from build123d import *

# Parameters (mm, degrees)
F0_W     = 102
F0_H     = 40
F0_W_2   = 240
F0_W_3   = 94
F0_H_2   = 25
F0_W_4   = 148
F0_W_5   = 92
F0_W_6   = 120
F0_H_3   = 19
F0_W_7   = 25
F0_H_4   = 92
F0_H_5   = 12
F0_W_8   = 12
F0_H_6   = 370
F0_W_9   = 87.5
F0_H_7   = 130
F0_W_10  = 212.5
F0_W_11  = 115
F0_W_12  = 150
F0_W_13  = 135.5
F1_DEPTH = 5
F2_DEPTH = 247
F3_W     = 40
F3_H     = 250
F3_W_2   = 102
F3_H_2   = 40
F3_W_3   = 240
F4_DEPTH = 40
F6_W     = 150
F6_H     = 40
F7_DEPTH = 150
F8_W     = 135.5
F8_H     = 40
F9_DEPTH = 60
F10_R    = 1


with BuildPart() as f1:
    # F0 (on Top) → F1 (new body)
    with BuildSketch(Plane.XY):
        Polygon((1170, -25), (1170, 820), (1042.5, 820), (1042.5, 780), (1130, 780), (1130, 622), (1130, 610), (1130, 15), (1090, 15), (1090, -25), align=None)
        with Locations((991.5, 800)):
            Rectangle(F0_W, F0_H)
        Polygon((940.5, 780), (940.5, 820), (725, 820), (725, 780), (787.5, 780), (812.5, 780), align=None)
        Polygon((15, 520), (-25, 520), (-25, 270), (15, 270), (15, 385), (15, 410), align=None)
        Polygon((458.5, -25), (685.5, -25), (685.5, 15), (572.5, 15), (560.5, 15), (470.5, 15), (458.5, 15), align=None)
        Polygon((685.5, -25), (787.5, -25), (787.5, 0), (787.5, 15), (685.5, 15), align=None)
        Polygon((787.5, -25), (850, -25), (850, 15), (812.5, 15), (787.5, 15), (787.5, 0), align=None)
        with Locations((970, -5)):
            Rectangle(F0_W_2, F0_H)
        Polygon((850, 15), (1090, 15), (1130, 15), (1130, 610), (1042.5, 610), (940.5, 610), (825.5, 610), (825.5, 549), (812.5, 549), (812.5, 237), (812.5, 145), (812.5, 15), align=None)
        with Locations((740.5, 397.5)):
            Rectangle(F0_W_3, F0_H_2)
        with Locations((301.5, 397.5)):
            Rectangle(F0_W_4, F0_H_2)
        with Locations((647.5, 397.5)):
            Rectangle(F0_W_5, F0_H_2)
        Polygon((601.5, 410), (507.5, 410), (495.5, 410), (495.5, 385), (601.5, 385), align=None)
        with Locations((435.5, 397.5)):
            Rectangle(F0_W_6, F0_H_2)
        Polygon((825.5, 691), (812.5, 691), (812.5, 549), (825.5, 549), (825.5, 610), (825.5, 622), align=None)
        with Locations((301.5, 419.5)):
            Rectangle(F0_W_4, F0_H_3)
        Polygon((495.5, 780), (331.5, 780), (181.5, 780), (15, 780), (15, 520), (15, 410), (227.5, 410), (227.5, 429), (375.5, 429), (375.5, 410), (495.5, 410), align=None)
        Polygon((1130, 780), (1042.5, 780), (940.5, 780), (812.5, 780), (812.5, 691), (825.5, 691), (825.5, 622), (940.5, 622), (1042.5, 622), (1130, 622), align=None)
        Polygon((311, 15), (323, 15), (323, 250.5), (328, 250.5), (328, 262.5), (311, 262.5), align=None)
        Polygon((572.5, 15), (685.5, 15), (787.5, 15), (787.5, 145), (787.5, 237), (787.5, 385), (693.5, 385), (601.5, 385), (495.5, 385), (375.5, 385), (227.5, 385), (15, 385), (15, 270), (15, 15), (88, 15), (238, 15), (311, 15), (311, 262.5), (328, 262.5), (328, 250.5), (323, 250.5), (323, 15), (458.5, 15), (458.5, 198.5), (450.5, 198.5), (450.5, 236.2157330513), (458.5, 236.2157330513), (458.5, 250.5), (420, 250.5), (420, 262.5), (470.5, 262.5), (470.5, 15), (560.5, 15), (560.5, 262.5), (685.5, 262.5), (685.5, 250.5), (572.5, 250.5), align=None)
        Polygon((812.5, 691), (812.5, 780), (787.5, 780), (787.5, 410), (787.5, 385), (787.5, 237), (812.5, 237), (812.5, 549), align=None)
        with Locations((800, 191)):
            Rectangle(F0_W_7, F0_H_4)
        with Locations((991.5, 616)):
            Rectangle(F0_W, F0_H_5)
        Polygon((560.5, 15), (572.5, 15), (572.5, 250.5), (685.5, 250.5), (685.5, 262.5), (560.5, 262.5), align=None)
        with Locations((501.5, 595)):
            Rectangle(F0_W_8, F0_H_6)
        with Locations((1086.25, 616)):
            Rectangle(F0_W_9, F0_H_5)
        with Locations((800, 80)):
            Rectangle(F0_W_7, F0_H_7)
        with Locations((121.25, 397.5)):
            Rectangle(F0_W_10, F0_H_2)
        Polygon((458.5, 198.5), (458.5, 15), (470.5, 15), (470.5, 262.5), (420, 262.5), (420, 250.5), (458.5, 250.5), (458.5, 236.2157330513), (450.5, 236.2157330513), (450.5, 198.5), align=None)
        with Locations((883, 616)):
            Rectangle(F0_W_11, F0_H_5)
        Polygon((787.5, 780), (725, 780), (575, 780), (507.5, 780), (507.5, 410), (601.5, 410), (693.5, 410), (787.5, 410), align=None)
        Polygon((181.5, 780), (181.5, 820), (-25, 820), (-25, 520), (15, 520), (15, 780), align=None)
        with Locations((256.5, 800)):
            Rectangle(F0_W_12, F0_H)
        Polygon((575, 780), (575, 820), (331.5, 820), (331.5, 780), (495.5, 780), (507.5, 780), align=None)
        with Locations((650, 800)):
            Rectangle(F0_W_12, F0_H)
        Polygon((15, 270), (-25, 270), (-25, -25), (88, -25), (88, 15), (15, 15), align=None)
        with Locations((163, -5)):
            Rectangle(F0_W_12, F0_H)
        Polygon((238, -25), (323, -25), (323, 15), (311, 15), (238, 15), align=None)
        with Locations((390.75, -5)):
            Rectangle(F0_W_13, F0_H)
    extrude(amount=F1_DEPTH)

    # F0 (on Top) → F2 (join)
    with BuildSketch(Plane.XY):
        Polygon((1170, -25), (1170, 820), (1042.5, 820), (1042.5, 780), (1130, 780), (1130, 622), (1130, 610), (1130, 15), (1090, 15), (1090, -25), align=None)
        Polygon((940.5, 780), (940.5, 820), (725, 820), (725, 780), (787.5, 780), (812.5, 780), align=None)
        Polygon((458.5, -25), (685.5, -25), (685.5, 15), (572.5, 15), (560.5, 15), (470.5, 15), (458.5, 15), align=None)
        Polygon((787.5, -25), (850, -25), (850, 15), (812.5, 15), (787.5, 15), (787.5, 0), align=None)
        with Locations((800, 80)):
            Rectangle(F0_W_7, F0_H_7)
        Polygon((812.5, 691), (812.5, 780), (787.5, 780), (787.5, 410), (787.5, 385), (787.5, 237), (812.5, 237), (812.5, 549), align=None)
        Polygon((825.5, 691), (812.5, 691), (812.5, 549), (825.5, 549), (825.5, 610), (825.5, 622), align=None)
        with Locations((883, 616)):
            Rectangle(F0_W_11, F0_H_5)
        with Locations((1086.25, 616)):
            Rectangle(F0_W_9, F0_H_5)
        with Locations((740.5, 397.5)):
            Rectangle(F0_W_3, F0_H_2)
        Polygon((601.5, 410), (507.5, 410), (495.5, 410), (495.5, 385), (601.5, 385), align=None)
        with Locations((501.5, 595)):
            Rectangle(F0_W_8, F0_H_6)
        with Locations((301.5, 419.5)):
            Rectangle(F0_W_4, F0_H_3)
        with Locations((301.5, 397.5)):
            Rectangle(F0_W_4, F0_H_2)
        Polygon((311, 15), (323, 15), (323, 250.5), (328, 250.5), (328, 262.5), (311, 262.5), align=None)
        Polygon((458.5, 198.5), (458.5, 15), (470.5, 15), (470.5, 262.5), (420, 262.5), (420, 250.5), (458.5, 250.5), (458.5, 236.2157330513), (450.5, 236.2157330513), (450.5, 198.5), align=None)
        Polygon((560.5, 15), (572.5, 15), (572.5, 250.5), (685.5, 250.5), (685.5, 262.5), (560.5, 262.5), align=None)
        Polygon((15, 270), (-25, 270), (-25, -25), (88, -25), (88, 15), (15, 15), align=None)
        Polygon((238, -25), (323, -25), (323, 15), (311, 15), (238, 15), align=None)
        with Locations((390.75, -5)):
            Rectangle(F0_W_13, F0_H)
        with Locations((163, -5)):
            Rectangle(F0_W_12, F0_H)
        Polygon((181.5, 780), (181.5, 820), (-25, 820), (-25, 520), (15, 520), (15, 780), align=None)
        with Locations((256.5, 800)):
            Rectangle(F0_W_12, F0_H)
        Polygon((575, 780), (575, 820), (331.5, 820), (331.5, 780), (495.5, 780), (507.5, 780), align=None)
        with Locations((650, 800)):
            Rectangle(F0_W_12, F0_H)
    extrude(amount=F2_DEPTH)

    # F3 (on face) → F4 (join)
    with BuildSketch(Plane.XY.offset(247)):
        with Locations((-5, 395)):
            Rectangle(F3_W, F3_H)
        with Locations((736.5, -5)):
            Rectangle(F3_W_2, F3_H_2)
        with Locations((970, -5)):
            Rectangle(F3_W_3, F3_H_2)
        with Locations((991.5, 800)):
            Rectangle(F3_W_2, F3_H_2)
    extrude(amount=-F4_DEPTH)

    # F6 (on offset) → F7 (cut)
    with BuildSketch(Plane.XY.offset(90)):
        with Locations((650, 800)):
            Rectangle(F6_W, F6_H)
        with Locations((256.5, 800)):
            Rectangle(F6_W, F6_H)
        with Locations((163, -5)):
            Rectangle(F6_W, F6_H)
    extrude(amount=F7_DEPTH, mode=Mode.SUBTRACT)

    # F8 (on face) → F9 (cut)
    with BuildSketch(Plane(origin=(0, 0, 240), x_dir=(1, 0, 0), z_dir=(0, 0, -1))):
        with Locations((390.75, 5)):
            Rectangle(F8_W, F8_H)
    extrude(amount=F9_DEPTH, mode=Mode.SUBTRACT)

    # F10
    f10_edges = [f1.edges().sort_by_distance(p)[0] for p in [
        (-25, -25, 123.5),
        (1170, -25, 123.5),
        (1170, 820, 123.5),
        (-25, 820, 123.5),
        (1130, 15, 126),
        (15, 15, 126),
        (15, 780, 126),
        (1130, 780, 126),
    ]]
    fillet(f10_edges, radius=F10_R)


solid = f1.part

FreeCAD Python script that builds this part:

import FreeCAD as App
import Part
import Sketcher
Q = App.Units.Quantity


def edges_at(feature, points):
    """Names of the edges that pass closest to the given points."""
    edges = feature.Shape.Edges
    near = lambda p: min(range(len(edges)), key=lambda i: edges[i].distToShape(Part.Vertex(*p))[0])
    return sorted({f"Edge{near(p) + 1}" for p in points})


def add_polygon(sketch, points):
    """Adds a closed chain of lines whose ends are joined by coincident constraints."""
    first, n = sketch.GeometryCount, len(points)
    for a, b in zip(points, points[1:] + points[:1]):
        sketch.addGeometry(Part.LineSegment(App.Vector(*a, 0), App.Vector(*b, 0)), False)
    for i in range(n):
        sketch.addConstraint(Sketcher.Constraint("Coincident", first + i, 2, first + (i + 1) % n, 1))

doc = App.newDocument("Part")
params = doc.addObject("Spreadsheet::Sheet", "Params")
for row, (alias, value) in enumerate([
    ("sketch1_width", "1195 mm"),
    ("sketch1_height", "845 mm"),
    ("pad1_length", "5 mm"),
    ("sketch2_width", "40 mm"),
    ("sketch2_width2", "80 mm"),
    ("sketch2_width3", "106 mm"),
    ("sketch2_width4", "94 mm"),
    ("sketch2_width5", "280 mm"),
    ("pad2_length", "247 mm"),
    ("sketch3_width", "40 mm"),
    ("sketch3_width2", "102 mm"),
    ("sketch3_width3", "240 mm"),
    ("sketch3_height", "250 mm"),
    ("pad3_length", "40 mm"),
    ("sketch4_width", "150 mm"),
    ("sketch4_height", "40 mm"),
    ("pocket1_length", "150 mm"),
    ("sketch5_height", "40 mm"),
    ("sketch5_width", "135.5 mm"),
    ("pocket2_length", "60 mm"),
    ("fillet_radius", "1 mm"),
], start=1):
    params.set(f"A{row}", alias)
    params.set(f"B{row}", "=" + value)
    params.setAlias(f"B{row}", alias)

body = doc.addObject("PartDesign::Body", "Body")

# Sketch on XY plane
sketch1 = doc.addObject("Sketcher::SketchObject", "Sketch")
body.addObject(sketch1)
sketch1.AttachmentSupport = (doc.XY_Plane, [""])
sketch1.MapMode = "FlatFace"
add_polygon(sketch1, [(1170, -25), (1170, 820), (-25, 820), (-25, -25)])  # lines 0-3
sketch1.addConstraint(Sketcher.Constraint("Vertical", 0))
sketch1.addConstraint(Sketcher.Constraint("Horizontal", 1))
sketch1.addConstraint(Sketcher.Constraint("Vertical", 2))
sketch1.addConstraint(Sketcher.Constraint("Horizontal", 3))
sketch1.addConstraint(Sketcher.Constraint("DistanceX", 1, 2, 1, 1, Q("1195 mm")))
sketch1.addConstraint(Sketcher.Constraint("DistanceY", 0, 1, 0, 2, Q("845 mm")))
sketch1.addConstraint(Sketcher.Constraint("DistanceX", -1, 1, 0, 2, Q("1170 mm")))
sketch1.addConstraint(Sketcher.Constraint("DistanceY", -1, 1, 0, 2, Q("820 mm")))
sketch1.setExpression("Constraints[8]", "Params.sketch1_width")
sketch1.setExpression("Constraints[9]", "Params.sketch1_height")
pad1 = doc.addObject("PartDesign::Pad", "Pad")
body.addObject(pad1)
pad1.Profile = sketch1
pad1.setExpression("Length", "Params.pad1_length")

# Sketch on XY plane
sketch2 = doc.addObject("Sketcher::SketchObject", "Sketch001")
body.addObject(sketch2)
sketch2.AttachmentSupport = (doc.XY_Plane, [""])
sketch2.MapMode = "FlatFace"
add_polygon(sketch2, [(1170, -25), (1170, 820), (1042, 820), (1042, 780), (1130, 780), (1130, 622), (1042, 622), (1042, 610), (1130, 610), (1130, 15), (1090, 15), (1090, -25)])  # lines 0-11
add_polygon(sketch2, [(940, 780), (940, 820), (-25, 820), (-25, 520), (15, 520), (15, 780), (496, 780), (496, 385), (602, 385), (602, 410), (508, 410), (508, 780), (788, 780), (788, 410), (694, 410), (694, 385), (788, 385), (788, 237), (812, 237), (812, 549), (826, 549), (826, 610), (940, 610), (940, 622), (826, 622), (826, 691), (812, 691), (812, 780)])  # lines 12-39
add_polygon(sketch2, [(686, -25), (686, 15), (572, 15), (572, 250), (686, 250), (686, 262), (560, 262), (560, 15), (470, 15), (470, 262), (420, 262), (420, 250), (458, 250), (458, 236), (450, 236), (450, 198), (458, 198), (458, 15), (323, 15), (323, 250), (328, 250), (328, 262), (311, 262), (311, 15), (15, 15), (15, 270), (-25, 270), (-25, -25)])  # lines 40-67
add_polygon(sketch2, [(788, -25), (850, -25), (850, 15), (812, 15), (812, 145), (788, 145)])  # lines 68-73
add_polygon(sketch2, [(228, 429), (228, 385), (376, 385), (376, 429)])  # lines 74-77
sketch2.addConstraint(Sketcher.Constraint("Vertical", 0))
sketch2.addConstraint(Sketcher.Constraint("Horizontal", 1))
sketch2.addConstraint(Sketcher.Constraint("Vertical", 2))
sketch2.addConstraint(Sketcher.Constraint("Horizontal", 3))
sketch2.addConstraint(Sketcher.Constraint("Vertical", 4))
sketch2.addConstraint(Sketcher.Constraint("Horizontal", 5))
sketch2.addConstraint(Sketcher.Constraint("Vertical", 6))
sketch2.addConstraint(Sketcher.Constraint("Horizontal", 7))
sketch2.addConstraint(Sketcher.Constraint("Vertical", 8))
sketch2.addConstraint(Sketcher.Constraint("Horizontal", 9))
sketch2.addConstraint(Sketcher.Constraint("Vertical", 10))
sketch2.addConstraint(Sketcher.Constraint("Horizontal", 11))
sketch2.addConstraint(Sketcher.Constraint("Vertical", 12))
sketch2.addConstraint(Sketcher.Constraint("Horizontal", 13))
sketch2.addConstraint(Sketcher.Constraint("Vertical", 14))
sketch2.addConstraint(Sketcher.Constraint("Horizontal", 15))
sketch2.addConstraint(Sketcher.Constraint("Vertical", 16))
sketch2.addConstraint(Sketcher.Constraint("Horizontal", 17))
sketch2.addConstraint(Sketcher.Constraint("Vertical", 18))
sketch2.addConstraint(Sketcher.Constraint("Horizontal", 19))
sketch2.addConstraint(Sketcher.Constraint("Vertical", 20))
sketch2.addConstraint(Sketcher.Constraint("Horizontal", 21))
sketch2.addConstraint(Sketcher.Constraint("Vertical", 22))
sketch2.addConstraint(Sketcher.Constraint("Horizontal", 23))
sketch2.addConstraint(Sketcher.Constraint("Vertical", 24))
sketch2.addConstraint(Sketcher.Constraint("Horizontal", 25))
sketch2.addConstraint(Sketcher.Constraint("Vertical", 26))
sketch2.addConstraint(Sketcher.Constraint("Horizontal", 27))
sketch2.addConstraint(Sketcher.Constraint("Vertical", 28))
sketch2.addConstraint(Sketcher.Constraint("Horizontal", 29))
sketch2.addConstraint(Sketcher.Constraint("Vertical", 30))
sketch2.addConstraint(Sketcher.Constraint("Horizontal", 31))
sketch2.addConstraint(Sketcher.Constraint("Vertical", 32))
sketch2.addConstraint(Sketcher.Constraint("Horizontal", 33))
sketch2.addConstraint(Sketcher.Constraint("Vertical", 34))
sketch2.addConstraint(Sketcher.Constraint("Horizontal", 35))
sketch2.addConstraint(Sketcher.Constraint("Vertical", 36))
sketch2.addConstraint(Sketcher.Constraint("Horizontal", 37))
sketch2.addConstraint(Sketcher.Constraint("Vertical", 38))
sketch2.addConstraint(Sketcher.Constraint("Horizontal", 39))
sketch2.addConstraint(Sketcher.Constraint("Vertical", 40))
sketch2.addConstraint(Sketcher.Constraint("Horizontal", 41))
sketch2.addConstraint(Sketcher.Constraint("Vertical", 42))
sketch2.addConstraint(Sketcher.Constraint("Horizontal", 43))
sketch2.addConstraint(Sketcher.Constraint("Vertical", 44))
sketch2.addConstraint(Sketcher.Constraint("Horizontal", 45))
sketch2.addConstraint(Sketcher.Constraint("Vertical", 46))
sketch2.addConstraint(Sketcher.Constraint("Horizontal", 47))
sketch2.addConstraint(Sketcher.Constraint("Vertical", 48))
sketch2.addConstraint(Sketcher.Constraint("Horizontal", 49))
sketch2.addConstraint(Sketcher.Constraint("Vertical", 50))
sketch2.addConstraint(Sketcher.Constraint("Horizontal", 51))
sketch2.addConstraint(Sketcher.Constraint("Vertical", 52))
sketch2.addConstraint(Sketcher.Constraint("Horizontal", 53))
sketch2.addConstraint(Sketcher.Constraint("Vertical", 54))
sketch2.addConstraint(Sketcher.Constraint("Horizontal", 55))
sketch2.addConstraint(Sketcher.Constraint("Vertical", 56))
sketch2.addConstraint(Sketcher.Constraint("Horizontal", 57))
sketch2.addConstraint(Sketcher.Constraint("Vertical", 58))
sketch2.addConstraint(Sketcher.Constraint("Horizontal", 59))
sketch2.addConstraint(Sketcher.Constraint("Vertical", 60))
sketch2.addConstraint(Sketcher.Constraint("Horizontal", 61))
sketch2.addConstraint(Sketcher.Constraint("Vertical", 62))
sketch2.addConstraint(Sketcher.Constraint("Horizontal", 63))
sketch2.addConstraint(Sketcher.Constraint("Vertical", 64))
sketch2.addConstraint(Sketcher.Constraint("Horizontal", 65))
sketch2.addConstraint(Sketcher.Constraint("Vertical", 66))
sketch2.addConstraint(Sketcher.Constraint("Horizontal", 67))
sketch2.addConstraint(Sketcher.Constraint("Horizontal", 68))
sketch2.addConstraint(Sketcher.Constraint("Vertical", 69))
sketch2.addConstraint(Sketcher.Constraint("Horizontal", 70))
sketch2.addConstraint(Sketcher.Constraint("Vertical", 71))
sketch2.addConstraint(Sketcher.Constraint("Horizontal", 72))
sketch2.addConstraint(Sketcher.Constraint("Vertical", 73))
sketch2.addConstraint(Sketcher.Constraint("Vertical", 74))
sketch2.addConstraint(Sketcher.Constraint("Horizontal", 75))
sketch2.addConstraint(Sketcher.Constraint("Vertical", 76))
sketch2.addConstraint(Sketcher.Constraint("Horizontal", 77))
sketch2.addConstraint(Sketcher.Constraint("Horizontal", 1, 2, 12, 2))
sketch2.addConstraint(Sketcher.Constraint("Horizontal", 3, 2, 16, 2))
sketch2.addConstraint(Sketcher.Constraint("Horizontal", 17, 2, 22, 2))
sketch2.addConstraint(Sketcher.Constraint("Horizontal", 21, 2, 24, 2))
sketch2.addConstraint(Sketcher.Constraint("Horizontal", 19, 2, 26, 2))
sketch2.addConstraint(Sketcher.Constraint("Horizontal", 7, 2, 32, 2))
sketch2.addConstraint(Sketcher.Constraint("Horizontal", 5, 2, 34, 2))
sketch2.addConstraint(Sketcher.Constraint("Horizontal", 23, 2, 38, 2))
sketch2.addConstraint(Sketcher.Constraint("Horizontal", 9, 2, 40, 2))
sketch2.addConstraint(Sketcher.Constraint("Horizontal", 41, 2, 46, 2))
sketch2.addConstraint(Sketcher.Constraint("Horizontal", 45, 2, 48, 2))
sketch2.addConstraint(Sketcher.Constraint("Horizontal", 43, 2, 50, 2))
sketch2.addConstraint(Sketcher.Constraint("Horizontal", 47, 2, 56, 2))
sketch2.addConstraint(Sketcher.Constraint("Horizontal", 51, 2, 58, 2))
sketch2.addConstraint(Sketcher.Constraint("Horizontal", 49, 2, 60, 2))
sketch2.addConstraint(Sketcher.Constraint("Horizontal", 57, 2, 62, 2))
sketch2.addConstraint(Sketcher.Constraint("Horizontal", 11, 2, 66, 2))
sketch2.addConstraint(Sketcher.Constraint("Horizontal", 67, 2, 68, 2))
sketch2.addConstraint(Sketcher.Constraint("Horizontal", 63, 2, 69, 2))
sketch2.addConstraint(Sketcher.Constraint("Horizontal", 27, 2, 74, 2))
sketch2.addConstraint(Sketcher.Constraint("Vertical", 2, 2, 5, 2))
sketch2.addConstraint(Sketcher.Constraint("Vertical", 4, 2, 7, 2))
sketch2.addConstraint(Sketcher.Constraint("Vertical", 24, 2, 27, 2))
sketch2.addConstraint(Sketcher.Constraint("Vertical", 12, 2, 33, 2))
sketch2.addConstraint(Sketcher.Constraint("Vertical", 32, 2, 35, 2))
sketch2.addConstraint(Sketcher.Constraint("Vertical", 30, 2, 37, 2))
sketch2.addConstraint(Sketcher.Constraint("Vertical", 40, 2, 43, 2))
sketch2.addConstraint(Sketcher.Constraint("Vertical", 52, 2, 55, 2))
sketch2.addConstraint(Sketcher.Constraint("Vertical", 16, 2, 63, 2))
sketch2.addConstraint(Sketcher.Constraint("Vertical", 14, 2, 65, 2))
sketch2.addConstraint(Sketcher.Constraint("Vertical", 38, 2, 70, 2))
sketch2.addConstraint(Sketcher.Constraint("Vertical", 28, 2, 72, 2))
sketch2.addConstraint(Sketcher.Constraint("Equal", 9, 15))
sketch2.addConstraint(Sketcher.Constraint("Equal", 21, 25))
sketch2.addConstraint(Sketcher.Constraint("Equal", 65, 2))
sketch2.addConstraint(Sketcher.Constraint("Equal", 2, 10))
sketch2.addConstraint(Sketcher.Constraint("Equal", 72, 20))
sketch2.addConstraint(Sketcher.Constraint("Equal", 77, 28))
sketch2.addConstraint(Sketcher.Constraint("Equal", 34, 44))
sketch2.addConstraint(Sketcher.Constraint("DistanceX", 9, 2, 9, 1, Q("40 mm")))
sketch2.addConstraint(Sketcher.Constraint("DistanceX", 11, 1, 11, 2, Q("80 mm")))
sketch2.addConstraint(Sketcher.Constraint("DistanceX", 19, 1, 19, 2, Q("106 mm")))
sketch2.addConstraint(Sketcher.Constraint("DistanceX", 21, 2, 21, 1, Q("94 mm")))
sketch2.addConstraint(Sketcher.Constraint("DistanceX", 23, 1, 23, 2, Q("280 mm")))
sketch2.addConstraint(Sketcher.Constraint("DistanceX", 29, 1, 29, 2, Q("25 mm")))
sketch2.addConstraint(Sketcher.Constraint("DistanceX", 31, 1, 31, 2, Q("13 mm")))
sketch2.addConstraint(Sketcher.Constraint("DistanceX", 33, 1, 33, 2, Q("115 mm")))
sketch2.addConstraint(Sketcher.Constraint("DistanceX", 41, 2, 41, 1, Q("113 mm")))
sketch2.addConstraint(Sketcher.Constraint("DistanceX", 45, 2, 45, 1, Q("125 mm")))
sketch2.addConstraint(Sketcher.Constraint("DistanceX", 47, 2, 47, 1, Q("90 mm")))
sketch2.addConstraint(Sketcher.Constraint("DistanceX", 53, 2, 53, 1, Q("8 mm")))
sketch2.addConstraint(Sketcher.Constraint("DistanceX", 59, 1, 59, 2, Q("5 mm")))
sketch2.addConstraint(Sketcher.Constraint("DistanceX", 61, 2, 61, 1, Q("17 mm")))
sketch2.addConstraint(Sketcher.Constraint("DistanceX", 63, 2, 63, 1, Q("296 mm")))
sketch2.addConstraint(Sketcher.Constraint("DistanceX", 75, 1, 75, 2, Q("148 mm")))
sketch2.addConstraint(Sketcher.Constraint("DistanceY", 0, 1, 0, 2, Q("845 mm")))
sketch2.addConstraint(Sketcher.Constraint("DistanceY", 4, 2, 4, 1, Q("158 mm")))
sketch2.addConstraint(Sketcher.Constraint("DistanceY", 6, 2, 6, 1, Q("12 mm")))
sketch2.addConstraint(Sketcher.Constraint("DistanceY", 14, 2, 14, 1, Q("300 mm")))
sketch2.addConstraint(Sketcher.Constraint("DistanceY", 18, 2, 18, 1, Q("395 mm")))
sketch2.addConstraint(Sketcher.Constraint("DistanceY", 30, 1, 30, 2, Q("312 mm")))
sketch2.addConstraint(Sketcher.Constraint("DistanceY", 36, 1, 36, 2, Q("69 mm")))
sketch2.addConstraint(Sketcher.Constraint("DistanceY", 64, 1, 64, 2, Q("255 mm")))
sketch2.addConstraint(Sketcher.Constraint("DistanceY", 71, 1, 71, 2, Q("130 mm")))
sketch2.addConstraint(Sketcher.Constraint("DistanceY", 74, 2, 74, 1, Q("44 mm")))
sketch2.addConstraint(Sketcher.Constraint("DistanceX", 1, 2, 1, 1, Q("127.5 mm")))
sketch2.addConstraint(Sketcher.Constraint("DistanceX", 13, 2, 13, 1, Q("965.5 mm")))
sketch2.addConstraint(Sketcher.Constraint("DistanceX", 49, 2, 49, 1, Q("50.5 mm")))
sketch2.addConstraint(Sketcher.Constraint("DistanceX", 51, 1, 51, 2, Q("38.5 mm")))
sketch2.addConstraint(Sketcher.Constraint("DistanceX", 57, 2, 57, 1, Q("135.5 mm")))
sketch2.addConstraint(Sketcher.Constraint("DistanceX", 68, 1, 68, 2, Q("62.5 mm")))
sketch2.addConstraint(Sketcher.Constraint("DistanceY", 42, 1, 42, 2, Q("235.5 mm")))
sketch2.addConstraint(Sketcher.Constraint("DistanceY", 56, 2, 56, 1, Q("183.5 mm")))
sketch2.addConstraint(Sketcher.Constraint("DistanceX", -1, 1, 0, 2, Q("1170 mm")))
sketch2.addConstraint(Sketcher.Constraint("DistanceY", -1, 1, 0, 2, Q("820 mm")))
sketch2.addConstraint(Sketcher.Constraint("DistanceX", 13, 2, -1, 1, Q("25 mm")))
sketch2.addConstraint(Sketcher.Constraint("DistanceX", -1, 1, 74, 2, Q("227.5 mm")))
sketch2.addConstraint(Sketcher.Constraint("DistanceY", 52, 2, 52, 1, Q("14.284267 mm")))
sketch2.setExpression("Constraints[195]", "Params.sketch2_width")
sketch2.setExpression("Constraints[196]", "Params.sketch2_width2")
sketch2.setExpression("Constraints[197]", "Params.sketch2_width3")
sketch2.setExpression("Constraints[198]", "Params.sketch2_width4")
sketch2.setExpression("Constraints[199]", "Params.sketch2_width5")
pad2 = doc.addObject("PartDesign::Pad", "Pad001")
body.addObject(pad2)
pad2.Profile = sketch2
pad2.setExpression("Length", "Params.pad2_length")

# Sketch on XY plane
sketch3 = doc.addObject("Sketcher::SketchObject", "Sketch002")
body.addObject(sketch3)
sketch3.AttachmentSupport = (doc.XY_Plane, [""])
sketch3.MapMode = "FlatFace"
sketch3.AttachmentOffset = App.Placement(App.Vector(0, 0, 247), App.Rotation())
add_polygon(sketch3, [(-25, 520), (-25, 270), (15, 270), (15, 520)])  # lines 0-3
add_polygon(sketch3, [(686, 15), (686, -25), (788, -25), (788, 15)])  # lines 4-7
add_polygon(sketch3, [(850, 15), (850, -25), (1090, -25), (1090, 15)])  # lines 8-11
add_polygon(sketch3, [(940, 820), (940, 780), (1042, 780), (1042, 820)])  # lines 12-15
sketch3.addConstraint(Sketcher.Constraint("Vertical", 0))
sketch3.addConstraint(Sketcher.Constraint("Horizontal", 1))
sketch3.addConstraint(Sketcher.Constraint("Vertical", 2))
sketch3.addConstraint(Sketcher.Constraint("Horizontal", 3))
sketch3.addConstraint(Sketcher.Constraint("Vertical", 4))
sketch3.addConstraint(Sketcher.Constraint("Horizontal", 5))
sketch3.addConstraint(Sketcher.Constraint("Vertical", 6))
sketch3.addConstraint(Sketcher.Constraint("Horizontal", 7))
sketch3.addConstraint(Sketcher.Constraint("Vertical", 8))
sketch3.addConstraint(Sketcher.Constraint("Horizontal", 9))
sketch3.addConstraint(Sketcher.Constraint("Vertical", 10))
sketch3.addConstraint(Sketcher.Constraint("Horizontal", 11))
sketch3.addConstraint(Sketcher.Constraint("Vertical", 12))
sketch3.addConstraint(Sketcher.Constraint("Horizontal", 13))
sketch3.addConstraint(Sketcher.Constraint("Vertical", 14))
sketch3.addConstraint(Sketcher.Constraint("Horizontal", 15))
sketch3.addConstraint(Sketcher.Constraint("Horizontal", 5, 2, 8, 2))
sketch3.addConstraint(Sketcher.Constraint("Horizontal", 7, 2, 10, 2))
sketch3.addConstraint(Sketcher.Constraint("Equal", 7, 13))
sketch3.addConstraint(Sketcher.Constraint("Equal", 3, 4))
sketch3.addConstraint(Sketcher.Constraint("Equal", 10, 12))
sketch3.addConstraint(Sketcher.Constraint("DistanceX", 1, 1, 1, 2, Q("40 mm")))
sketch3.addConstraint(Sketcher.Constraint("DistanceX", 5, 1, 5, 2, Q("102 mm")))
sketch3.addConstraint(Sketcher.Constraint("DistanceX", 9, 1, 9, 2, Q("240 mm")))
sketch3.addConstraint(Sketcher.Constraint("DistanceY", 0, 2, 0, 1, Q("250 mm")))
sketch3.addConstraint(Sketcher.Constraint("DistanceX", 0, 2, -1, 1, Q("25 mm")))
sketch3.addConstraint(Sketcher.Constraint("DistanceY", -1, 1, 0, 2, Q("270 mm")))
sketch3.addConstraint(Sketcher.Constraint("DistanceY", 4, 2, -1, 1, Q("25 mm")))
sketch3.addConstraint(Sketcher.Constraint("DistanceX", -1, 1, 8, 2, Q("850 mm")))
sketch3.addConstraint(Sketcher.Constraint("DistanceY", -1, 1, 12, 2, Q("780 mm")))
sketch3.addConstraint(Sketcher.Constraint("DistanceX", 6, 2, 12, 2, Q("153 mm")))
sketch3.addConstraint(Sketcher.Constraint("DistanceX", -1, 1, 4, 2, Q("685.5 mm")))
sketch3.setExpression("Constraints[37]", "Params.sketch3_width")
sketch3.setExpression("Constraints[38]", "Params.sketch3_width2")
sketch3.setExpression("Constraints[39]", "Params.sketch3_width3")
sketch3.setExpression("Constraints[40]", "Params.sketch3_height")
pad3 = doc.addObject("PartDesign::Pad", "Pad002")
body.addObject(pad3)
pad3.Profile = sketch3
pad3.setExpression("Length", "Params.pad3_length")
pad3.Reversed = True

# Sketch on XY plane
sketch4 = doc.addObject("Sketcher::SketchObject", "Sketch003")
body.addObject(sketch4)
sketch4.AttachmentSupport = (doc.XY_Plane, [""])
sketch4.MapMode = "FlatFace"
sketch4.AttachmentOffset = App.Placement(App.Vector(0, 0, 90), App.Rotation())
add_polygon(sketch4, [(575, 820), (575, 780), (725, 780), (725, 820)])  # lines 0-3
add_polygon(sketch4, [(182, 820), (182, 780), (332, 780), (332, 820)])  # lines 4-7
add_polygon(sketch4, [(88, 15), (88, -25), (238, -25), (238, 15)])  # lines 8-11
sketch4.addConstraint(Sketcher.Constraint("Vertical", 0))
sketch4.addConstraint(Sketcher.Constraint("Horizontal", 1))
sketch4.addConstraint(Sketcher.Constraint("Vertical", 2))
sketch4.addConstraint(Sketcher.Constraint("Horizontal", 3))
sketch4.addConstraint(Sketcher.Constraint("Vertical", 4))
sketch4.addConstraint(Sketcher.Constraint("Horizontal", 5))
sketch4.addConstraint(Sketcher.Constraint("Vertical", 6))
sketch4.addConstraint(Sketcher.Constraint("Horizontal", 7))
sketch4.addConstraint(Sketcher.Constraint("Vertical", 8))
sketch4.addConstraint(Sketcher.Constraint("Horizontal", 9))
sketch4.addConstraint(Sketcher.Constraint("Vertical", 10))
sketch4.addConstraint(Sketcher.Constraint("Horizontal", 11))
sketch4.addConstraint(Sketcher.Constraint("Horizontal", 1, 2, 4, 2))
sketch4.addConstraint(Sketcher.Constraint("Horizontal", 3, 2, 6, 2))
sketch4.addConstraint(Sketcher.Constraint("Equal", 3, 5))
sketch4.addConstraint(Sketcher.Constraint("Equal", 7, 9))
sketch4.addConstraint(Sketcher.Constraint("Equal", 6, 8))
sketch4.addConstraint(Sketcher.Constraint("DistanceX", 1, 1, 1, 2, Q("150 mm")))
sketch4.addConstraint(Sketcher.Constraint("DistanceY", 0, 2, 0, 1, Q("40 mm")))
sketch4.addConstraint(Sketcher.Constraint("DistanceX", -1, 1, 0, 2, Q("575 mm")))
sketch4.addConstraint(Sketcher.Constraint("DistanceY", -1, 1, 0, 2, Q("780 mm")))
sketch4.addConstraint(Sketcher.Constraint("DistanceX", -1, 1, 8, 2, Q("88 mm")))
sketch4.addConstraint(Sketcher.Constraint("DistanceY", 8, 2, -1, 1, Q("25 mm")))
sketch4.addConstraint(Sketcher.Constraint("DistanceX", -1, 1, 4, 2, Q("181.5 mm")))
sketch4.setExpression("Constraints[29]", "Params.sketch4_width")
sketch4.setExpression("Constraints[30]", "Params.sketch4_height")
pocket1 = doc.addObject("PartDesign::Pocket", "Pocket")
body.addObject(pocket1)
pocket1.Profile = sketch4
pocket1.setExpression("Length", "Params.pocket1_length")
pocket1.Reversed = True

# Sketch on XY plane
sketch5 = doc.addObject("Sketcher::SketchObject", "Sketch004")
body.addObject(sketch5)
sketch5.AttachmentSupport = (doc.XY_Plane, [""])
sketch5.MapMode = "FlatFace"
sketch5.AttachmentOffset = App.Placement(App.Vector(0, 0, 240), App.Rotation())
add_polygon(sketch5, [(323, -25), (323, 15), (458, 15), (458, -25)])  # lines 0-3
sketch5.addConstraint(Sketcher.Constraint("Vertical", 0))
sketch5.addConstraint(Sketcher.Constraint("Horizontal", 1))
sketch5.addConstraint(Sketcher.Constraint("Vertical", 2))
sketch5.addConstraint(Sketcher.Constraint("Horizontal", 3))
sketch5.addConstraint(Sketcher.Constraint("DistanceY", 0, 1, 0, 2, Q("40 mm")))
sketch5.addConstraint(Sketcher.Constraint("DistanceX", 1, 1, 1, 2, Q("135.5 mm")))
sketch5.addConstraint(Sketcher.Constraint("DistanceX", -1, 1, 0, 2, Q("323 mm")))
sketch5.addConstraint(Sketcher.Constraint("DistanceY", -1, 1, 0, 2, Q("15 mm")))
sketch5.setExpression("Constraints[8]", "Params.sketch5_height")
sketch5.setExpression("Constraints[9]", "Params.sketch5_width")
pocket2 = doc.addObject("PartDesign::Pocket", "Pocket001")
body.addObject(pocket2)
pocket2.Profile = sketch5
pocket2.setExpression("Length", "Params.pocket2_length")
doc.recompute()

fillet = doc.addObject("PartDesign::Fillet", "Fillet")
body.addObject(fillet)
fillet.Base = (pocket2, edges_at(pocket2, [
    (-25, -25, 123.5),
    (1170, -25, 123.5),
    (1170, 820, 123.5),
    (-25, 820, 123.5),
    (1130, 15, 126),
    (15, 15, 126),
    (15, 780, 126),
    (1130, 780, 126),
]))
fillet.setExpression("Radius", "Params.fillet_radius")

doc.recompute()
